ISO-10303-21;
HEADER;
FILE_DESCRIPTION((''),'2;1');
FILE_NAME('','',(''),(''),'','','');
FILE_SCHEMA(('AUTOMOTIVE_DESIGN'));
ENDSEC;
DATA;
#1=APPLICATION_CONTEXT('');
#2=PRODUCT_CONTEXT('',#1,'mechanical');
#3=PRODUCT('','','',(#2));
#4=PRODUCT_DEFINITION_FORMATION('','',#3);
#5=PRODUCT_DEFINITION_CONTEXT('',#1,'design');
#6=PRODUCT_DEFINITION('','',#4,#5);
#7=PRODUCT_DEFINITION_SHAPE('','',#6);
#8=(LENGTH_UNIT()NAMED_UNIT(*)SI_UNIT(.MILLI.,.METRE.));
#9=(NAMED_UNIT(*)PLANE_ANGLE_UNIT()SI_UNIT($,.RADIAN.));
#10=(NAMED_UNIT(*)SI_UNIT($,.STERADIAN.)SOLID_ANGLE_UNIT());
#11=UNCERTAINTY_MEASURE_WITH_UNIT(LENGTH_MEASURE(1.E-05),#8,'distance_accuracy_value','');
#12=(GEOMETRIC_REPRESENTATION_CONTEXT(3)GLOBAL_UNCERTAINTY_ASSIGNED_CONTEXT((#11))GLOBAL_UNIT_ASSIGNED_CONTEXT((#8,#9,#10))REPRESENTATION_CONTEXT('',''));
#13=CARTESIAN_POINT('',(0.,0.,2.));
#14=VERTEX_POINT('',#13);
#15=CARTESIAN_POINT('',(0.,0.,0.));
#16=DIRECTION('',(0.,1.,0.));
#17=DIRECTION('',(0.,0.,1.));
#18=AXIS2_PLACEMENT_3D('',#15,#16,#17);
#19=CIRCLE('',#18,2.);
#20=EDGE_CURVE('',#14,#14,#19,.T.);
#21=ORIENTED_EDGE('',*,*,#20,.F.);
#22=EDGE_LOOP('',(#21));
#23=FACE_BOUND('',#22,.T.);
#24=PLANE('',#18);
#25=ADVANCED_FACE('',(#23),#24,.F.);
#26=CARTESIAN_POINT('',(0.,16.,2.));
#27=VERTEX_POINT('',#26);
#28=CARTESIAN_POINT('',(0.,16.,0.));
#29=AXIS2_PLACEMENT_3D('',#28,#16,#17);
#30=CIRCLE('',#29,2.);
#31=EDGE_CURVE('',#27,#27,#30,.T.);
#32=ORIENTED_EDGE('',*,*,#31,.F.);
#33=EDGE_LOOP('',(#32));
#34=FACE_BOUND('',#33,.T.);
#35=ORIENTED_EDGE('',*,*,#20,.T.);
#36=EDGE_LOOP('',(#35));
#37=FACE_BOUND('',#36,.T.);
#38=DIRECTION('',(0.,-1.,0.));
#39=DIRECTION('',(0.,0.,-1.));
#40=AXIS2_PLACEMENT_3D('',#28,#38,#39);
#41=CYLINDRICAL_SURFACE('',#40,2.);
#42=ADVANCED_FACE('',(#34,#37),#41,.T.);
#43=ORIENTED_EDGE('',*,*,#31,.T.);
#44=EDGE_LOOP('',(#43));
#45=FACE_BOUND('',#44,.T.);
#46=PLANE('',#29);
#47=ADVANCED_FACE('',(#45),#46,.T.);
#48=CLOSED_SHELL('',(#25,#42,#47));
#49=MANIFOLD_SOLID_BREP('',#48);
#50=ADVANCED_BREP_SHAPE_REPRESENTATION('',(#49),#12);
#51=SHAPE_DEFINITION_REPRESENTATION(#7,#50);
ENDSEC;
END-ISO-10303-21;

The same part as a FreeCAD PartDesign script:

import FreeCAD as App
import Part
import Sketcher

doc = App.newDocument("Part")
body = doc.addObject("PartDesign::Body", "Body")

sketch1 = body.newObject("Sketcher::SketchObject", "Sketch")
sketch1.AttachmentSupport = (doc.getObject("XZ_Plane"), [""])
sketch1.MapMode = "FlatFace"
sketch1.addGeometry(Part.Circle(App.Vector(0, 0, 0), App.Vector(0, 0, 1), 2), False)
sketch1.addConstraint(Sketcher.Constraint("Coincident", 0, 3, -1, 1))
sketch1.addConstraint(Sketcher.Constraint("Diameter", 0, 4.0))
pad1 = body.newObject("PartDesign::Pad", "Pad")
pad1.Profile = sketch1
pad1.Length = 16
pad1.Reversed = True

doc.recompute()
